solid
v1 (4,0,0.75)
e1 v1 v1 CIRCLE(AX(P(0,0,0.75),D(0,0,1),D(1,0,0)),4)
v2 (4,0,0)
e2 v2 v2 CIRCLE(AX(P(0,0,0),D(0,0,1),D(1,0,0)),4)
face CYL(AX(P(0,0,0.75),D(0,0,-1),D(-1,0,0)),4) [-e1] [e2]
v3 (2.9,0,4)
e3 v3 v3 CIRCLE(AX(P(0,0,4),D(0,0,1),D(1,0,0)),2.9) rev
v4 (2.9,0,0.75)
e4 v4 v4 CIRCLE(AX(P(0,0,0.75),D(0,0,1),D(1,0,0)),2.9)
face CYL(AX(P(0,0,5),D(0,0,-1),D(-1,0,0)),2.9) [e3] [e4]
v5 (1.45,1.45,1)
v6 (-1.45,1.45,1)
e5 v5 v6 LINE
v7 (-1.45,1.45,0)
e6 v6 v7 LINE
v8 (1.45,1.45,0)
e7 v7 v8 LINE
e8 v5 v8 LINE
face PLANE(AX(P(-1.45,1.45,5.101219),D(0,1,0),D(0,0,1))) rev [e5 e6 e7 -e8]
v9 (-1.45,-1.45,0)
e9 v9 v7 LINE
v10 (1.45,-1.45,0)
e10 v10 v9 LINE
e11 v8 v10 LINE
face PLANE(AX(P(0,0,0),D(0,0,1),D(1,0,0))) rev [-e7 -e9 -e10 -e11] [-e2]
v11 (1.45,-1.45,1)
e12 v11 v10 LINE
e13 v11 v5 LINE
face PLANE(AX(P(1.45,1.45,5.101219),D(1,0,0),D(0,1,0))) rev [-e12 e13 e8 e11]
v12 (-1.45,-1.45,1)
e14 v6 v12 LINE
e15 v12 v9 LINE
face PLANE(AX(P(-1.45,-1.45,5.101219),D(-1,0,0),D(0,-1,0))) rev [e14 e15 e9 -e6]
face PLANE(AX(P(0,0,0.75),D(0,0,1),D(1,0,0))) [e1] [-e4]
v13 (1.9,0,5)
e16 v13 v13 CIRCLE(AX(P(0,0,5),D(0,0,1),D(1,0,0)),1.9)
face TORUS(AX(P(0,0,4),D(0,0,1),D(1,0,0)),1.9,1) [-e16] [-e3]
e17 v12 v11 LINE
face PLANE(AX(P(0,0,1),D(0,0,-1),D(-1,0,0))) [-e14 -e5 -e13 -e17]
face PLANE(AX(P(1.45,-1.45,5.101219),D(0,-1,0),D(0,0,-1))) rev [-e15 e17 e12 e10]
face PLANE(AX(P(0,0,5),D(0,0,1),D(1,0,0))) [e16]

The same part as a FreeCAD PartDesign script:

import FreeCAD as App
import Part
import Sketcher
Q = App.Units.Quantity


def edges_at(feature, points):
    """Names of the edges that pass closest to the given points."""
    edges = feature.Shape.Edges
    near = lambda p: min(range(len(edges)), key=lambda i: edges[i].distToShape(Part.Vertex(*p))[0])
    return sorted({f"Edge{near(p) + 1}" for p in points})


def add_polygon(sketch, points):
    """Adds a closed chain of lines whose ends are joined by coincident constraints."""
    first, n = sketch.GeometryCount, len(points)
    for a, b in zip(points, points[1:] + points[:1]):
        sketch.addGeometry(Part.LineSegment(App.Vector(*a, 0), App.Vector(*b, 0)), False)
    for i in range(n):
        sketch.addConstraint(Sketcher.Constraint("Coincident", first + i, 2, first + (i + 1) % n, 1))

doc = App.newDocument("Part")
params = doc.addObject("Spreadsheet::Sheet", "Params")
for row, (alias, value) in enumerate([
    ("sketch1_diameter", "8 mm"),
    ("pad1_length", "0.75 mm"),
    ("sketch2_diameter", "5.8 mm"),
    ("pad2_length", "4.25 mm"),
    ("sketch3_width", "2.5 mm"),
    ("pocket1_length", "1 mm"),
    ("fillet_radius", "1 mm"),
    ("sketch4_width", "2.9 mm"),
    ("pocket2_length", "1 mm"),
], start=1):
    params.set(f"A{row}", alias)
    params.set(f"B{row}", "=" + value)
    params.setAlias(f"B{row}", alias)

body = doc.addObject("PartDesign::Body", "Body")

# Sketch on XY plane
sketch1 = body.newObject("Sketcher::SketchObject", "Sketch")
sketch1.AttachmentSupport = (doc.getObject("XY_Plane"), [""])
sketch1.MapMode = "FlatFace"
sketch1.addGeometry(Part.Circle(App.Vector(0, 0, 0), App.Vector(0, 0, 1), 4), False)
sketch1.addConstraint([
    Sketcher.Constraint("Coincident", 0, 3, -1, 1),
    Sketcher.Constraint("Diameter", 0, Q("8 mm")),
])
sketch1.setExpression("Constraints[1]", "Params.sketch1_diameter")
pad1 = body.newObject("PartDesign::Pad", "Pad")
pad1.Profile = sketch1
pad1.setExpression("Length", "Params.pad1_length")

# Sketch on XY plane
sketch2 = body.newObject("Sketcher::SketchObject", "Sketch001")
sketch2.AttachmentSupport = (doc.getObject("XY_Plane"), [""])
sketch2.MapMode = "FlatFace"
sketch2.AttachmentOffset = App.Placement(App.Vector(0, 0, 0.75), App.Rotation())
sketch2.addGeometry(Part.Circle(App.Vector(0, 0, 0), App.Vector(0, 0, 1), 2.9), False)
sketch2.addConstraint([
    Sketcher.Constraint("Coincident", 0, 3, -1, 1),
    Sketcher.Constraint("Diameter", 0, Q("5.8 mm")),
])
sketch2.setExpression("Constraints[1]", "Params.sketch2_diameter")
pad2 = body.newObject("PartDesign::Pad", "Pad001")
pad2.Profile = sketch2
pad2.setExpression("Length", "Params.pad2_length")

# Sketch on XY plane
sketch3 = body.newObject("Sketcher::SketchObject", "Sketch002")
sketch3.AttachmentSupport = (doc.getObject("XY_Plane"), [""])
sketch3.MapMode = "FlatFace"
add_polygon(sketch3, [(1.2, 1.2), (1.2, -1.2), (-1.2, -1.2), (-1.2, 1.2)])  # lines 0-3
sketch3.addConstraint([
    Sketcher.Constraint("Vertical", 0),
    Sketcher.Constraint("Horizontal", 1),
    Sketcher.Constraint("Vertical", 2),
    Sketcher.Constraint("Horizontal", 3),
    Sketcher.Constraint("Symmetric", 0, 2, 2, 2, -1, 1),
    Sketcher.Constraint("Equal", 3, 0),
    Sketcher.Constraint("DistanceX", 1, 2, 1, 1, Q("2.5 mm")),
])
sketch3.setExpression("Constraints[10]", "Params.sketch3_width")
pocket1 = body.newObject("PartDesign::Pocket", "Pocket")
pocket1.Profile = sketch3
pocket1.setExpression("Length", "Params.pocket1_length")
pocket1.Reversed = True
doc.recompute()

fillet = body.newObject("PartDesign::Fillet", "Fillet")
fillet.Base = (pocket1, edges_at(pocket1, [(-2.9, 0, 5)]))
fillet.setExpression("Radius", "Params.fillet_radius")

# Sketch on XY plane
sketch4 = body.newObject("Sketcher::SketchObject", "Sketch003")
sketch4.AttachmentSupport = (doc.getObject("XY_Plane"), [""])
sketch4.MapMode = "FlatFace"
add_polygon(sketch4, [(1.4, 1.4), (1.4, -1.4), (-1.4, -1.4), (-1.4, 1.4)])  # lines 0-3
sketch4.addConstraint([
    Sketcher.Constraint("Vertical", 0),
    Sketcher.Constraint("Horizontal", 1),
    Sketcher.Constraint("Vertical", 2),
    Sketcher.Constraint("Horizontal", 3),
    Sketcher.Constraint("Symmetric", 0, 2, 2, 2, -1, 1),
    Sketcher.Constraint("Equal", 3, 0),
    Sketcher.Constraint("DistanceX", 1, 2, 1, 1, Q("2.9 mm")),
])
sketch4.setExpression("Constraints[10]", "Params.sketch4_width")
pocket2 = body.newObject("PartDesign::Pocket", "Pocket001")
pocket2.Profile = sketch4
pocket2.setExpression("Length", "Params.pocket2_length")
pocket2.Reversed = True

doc.recompute()
